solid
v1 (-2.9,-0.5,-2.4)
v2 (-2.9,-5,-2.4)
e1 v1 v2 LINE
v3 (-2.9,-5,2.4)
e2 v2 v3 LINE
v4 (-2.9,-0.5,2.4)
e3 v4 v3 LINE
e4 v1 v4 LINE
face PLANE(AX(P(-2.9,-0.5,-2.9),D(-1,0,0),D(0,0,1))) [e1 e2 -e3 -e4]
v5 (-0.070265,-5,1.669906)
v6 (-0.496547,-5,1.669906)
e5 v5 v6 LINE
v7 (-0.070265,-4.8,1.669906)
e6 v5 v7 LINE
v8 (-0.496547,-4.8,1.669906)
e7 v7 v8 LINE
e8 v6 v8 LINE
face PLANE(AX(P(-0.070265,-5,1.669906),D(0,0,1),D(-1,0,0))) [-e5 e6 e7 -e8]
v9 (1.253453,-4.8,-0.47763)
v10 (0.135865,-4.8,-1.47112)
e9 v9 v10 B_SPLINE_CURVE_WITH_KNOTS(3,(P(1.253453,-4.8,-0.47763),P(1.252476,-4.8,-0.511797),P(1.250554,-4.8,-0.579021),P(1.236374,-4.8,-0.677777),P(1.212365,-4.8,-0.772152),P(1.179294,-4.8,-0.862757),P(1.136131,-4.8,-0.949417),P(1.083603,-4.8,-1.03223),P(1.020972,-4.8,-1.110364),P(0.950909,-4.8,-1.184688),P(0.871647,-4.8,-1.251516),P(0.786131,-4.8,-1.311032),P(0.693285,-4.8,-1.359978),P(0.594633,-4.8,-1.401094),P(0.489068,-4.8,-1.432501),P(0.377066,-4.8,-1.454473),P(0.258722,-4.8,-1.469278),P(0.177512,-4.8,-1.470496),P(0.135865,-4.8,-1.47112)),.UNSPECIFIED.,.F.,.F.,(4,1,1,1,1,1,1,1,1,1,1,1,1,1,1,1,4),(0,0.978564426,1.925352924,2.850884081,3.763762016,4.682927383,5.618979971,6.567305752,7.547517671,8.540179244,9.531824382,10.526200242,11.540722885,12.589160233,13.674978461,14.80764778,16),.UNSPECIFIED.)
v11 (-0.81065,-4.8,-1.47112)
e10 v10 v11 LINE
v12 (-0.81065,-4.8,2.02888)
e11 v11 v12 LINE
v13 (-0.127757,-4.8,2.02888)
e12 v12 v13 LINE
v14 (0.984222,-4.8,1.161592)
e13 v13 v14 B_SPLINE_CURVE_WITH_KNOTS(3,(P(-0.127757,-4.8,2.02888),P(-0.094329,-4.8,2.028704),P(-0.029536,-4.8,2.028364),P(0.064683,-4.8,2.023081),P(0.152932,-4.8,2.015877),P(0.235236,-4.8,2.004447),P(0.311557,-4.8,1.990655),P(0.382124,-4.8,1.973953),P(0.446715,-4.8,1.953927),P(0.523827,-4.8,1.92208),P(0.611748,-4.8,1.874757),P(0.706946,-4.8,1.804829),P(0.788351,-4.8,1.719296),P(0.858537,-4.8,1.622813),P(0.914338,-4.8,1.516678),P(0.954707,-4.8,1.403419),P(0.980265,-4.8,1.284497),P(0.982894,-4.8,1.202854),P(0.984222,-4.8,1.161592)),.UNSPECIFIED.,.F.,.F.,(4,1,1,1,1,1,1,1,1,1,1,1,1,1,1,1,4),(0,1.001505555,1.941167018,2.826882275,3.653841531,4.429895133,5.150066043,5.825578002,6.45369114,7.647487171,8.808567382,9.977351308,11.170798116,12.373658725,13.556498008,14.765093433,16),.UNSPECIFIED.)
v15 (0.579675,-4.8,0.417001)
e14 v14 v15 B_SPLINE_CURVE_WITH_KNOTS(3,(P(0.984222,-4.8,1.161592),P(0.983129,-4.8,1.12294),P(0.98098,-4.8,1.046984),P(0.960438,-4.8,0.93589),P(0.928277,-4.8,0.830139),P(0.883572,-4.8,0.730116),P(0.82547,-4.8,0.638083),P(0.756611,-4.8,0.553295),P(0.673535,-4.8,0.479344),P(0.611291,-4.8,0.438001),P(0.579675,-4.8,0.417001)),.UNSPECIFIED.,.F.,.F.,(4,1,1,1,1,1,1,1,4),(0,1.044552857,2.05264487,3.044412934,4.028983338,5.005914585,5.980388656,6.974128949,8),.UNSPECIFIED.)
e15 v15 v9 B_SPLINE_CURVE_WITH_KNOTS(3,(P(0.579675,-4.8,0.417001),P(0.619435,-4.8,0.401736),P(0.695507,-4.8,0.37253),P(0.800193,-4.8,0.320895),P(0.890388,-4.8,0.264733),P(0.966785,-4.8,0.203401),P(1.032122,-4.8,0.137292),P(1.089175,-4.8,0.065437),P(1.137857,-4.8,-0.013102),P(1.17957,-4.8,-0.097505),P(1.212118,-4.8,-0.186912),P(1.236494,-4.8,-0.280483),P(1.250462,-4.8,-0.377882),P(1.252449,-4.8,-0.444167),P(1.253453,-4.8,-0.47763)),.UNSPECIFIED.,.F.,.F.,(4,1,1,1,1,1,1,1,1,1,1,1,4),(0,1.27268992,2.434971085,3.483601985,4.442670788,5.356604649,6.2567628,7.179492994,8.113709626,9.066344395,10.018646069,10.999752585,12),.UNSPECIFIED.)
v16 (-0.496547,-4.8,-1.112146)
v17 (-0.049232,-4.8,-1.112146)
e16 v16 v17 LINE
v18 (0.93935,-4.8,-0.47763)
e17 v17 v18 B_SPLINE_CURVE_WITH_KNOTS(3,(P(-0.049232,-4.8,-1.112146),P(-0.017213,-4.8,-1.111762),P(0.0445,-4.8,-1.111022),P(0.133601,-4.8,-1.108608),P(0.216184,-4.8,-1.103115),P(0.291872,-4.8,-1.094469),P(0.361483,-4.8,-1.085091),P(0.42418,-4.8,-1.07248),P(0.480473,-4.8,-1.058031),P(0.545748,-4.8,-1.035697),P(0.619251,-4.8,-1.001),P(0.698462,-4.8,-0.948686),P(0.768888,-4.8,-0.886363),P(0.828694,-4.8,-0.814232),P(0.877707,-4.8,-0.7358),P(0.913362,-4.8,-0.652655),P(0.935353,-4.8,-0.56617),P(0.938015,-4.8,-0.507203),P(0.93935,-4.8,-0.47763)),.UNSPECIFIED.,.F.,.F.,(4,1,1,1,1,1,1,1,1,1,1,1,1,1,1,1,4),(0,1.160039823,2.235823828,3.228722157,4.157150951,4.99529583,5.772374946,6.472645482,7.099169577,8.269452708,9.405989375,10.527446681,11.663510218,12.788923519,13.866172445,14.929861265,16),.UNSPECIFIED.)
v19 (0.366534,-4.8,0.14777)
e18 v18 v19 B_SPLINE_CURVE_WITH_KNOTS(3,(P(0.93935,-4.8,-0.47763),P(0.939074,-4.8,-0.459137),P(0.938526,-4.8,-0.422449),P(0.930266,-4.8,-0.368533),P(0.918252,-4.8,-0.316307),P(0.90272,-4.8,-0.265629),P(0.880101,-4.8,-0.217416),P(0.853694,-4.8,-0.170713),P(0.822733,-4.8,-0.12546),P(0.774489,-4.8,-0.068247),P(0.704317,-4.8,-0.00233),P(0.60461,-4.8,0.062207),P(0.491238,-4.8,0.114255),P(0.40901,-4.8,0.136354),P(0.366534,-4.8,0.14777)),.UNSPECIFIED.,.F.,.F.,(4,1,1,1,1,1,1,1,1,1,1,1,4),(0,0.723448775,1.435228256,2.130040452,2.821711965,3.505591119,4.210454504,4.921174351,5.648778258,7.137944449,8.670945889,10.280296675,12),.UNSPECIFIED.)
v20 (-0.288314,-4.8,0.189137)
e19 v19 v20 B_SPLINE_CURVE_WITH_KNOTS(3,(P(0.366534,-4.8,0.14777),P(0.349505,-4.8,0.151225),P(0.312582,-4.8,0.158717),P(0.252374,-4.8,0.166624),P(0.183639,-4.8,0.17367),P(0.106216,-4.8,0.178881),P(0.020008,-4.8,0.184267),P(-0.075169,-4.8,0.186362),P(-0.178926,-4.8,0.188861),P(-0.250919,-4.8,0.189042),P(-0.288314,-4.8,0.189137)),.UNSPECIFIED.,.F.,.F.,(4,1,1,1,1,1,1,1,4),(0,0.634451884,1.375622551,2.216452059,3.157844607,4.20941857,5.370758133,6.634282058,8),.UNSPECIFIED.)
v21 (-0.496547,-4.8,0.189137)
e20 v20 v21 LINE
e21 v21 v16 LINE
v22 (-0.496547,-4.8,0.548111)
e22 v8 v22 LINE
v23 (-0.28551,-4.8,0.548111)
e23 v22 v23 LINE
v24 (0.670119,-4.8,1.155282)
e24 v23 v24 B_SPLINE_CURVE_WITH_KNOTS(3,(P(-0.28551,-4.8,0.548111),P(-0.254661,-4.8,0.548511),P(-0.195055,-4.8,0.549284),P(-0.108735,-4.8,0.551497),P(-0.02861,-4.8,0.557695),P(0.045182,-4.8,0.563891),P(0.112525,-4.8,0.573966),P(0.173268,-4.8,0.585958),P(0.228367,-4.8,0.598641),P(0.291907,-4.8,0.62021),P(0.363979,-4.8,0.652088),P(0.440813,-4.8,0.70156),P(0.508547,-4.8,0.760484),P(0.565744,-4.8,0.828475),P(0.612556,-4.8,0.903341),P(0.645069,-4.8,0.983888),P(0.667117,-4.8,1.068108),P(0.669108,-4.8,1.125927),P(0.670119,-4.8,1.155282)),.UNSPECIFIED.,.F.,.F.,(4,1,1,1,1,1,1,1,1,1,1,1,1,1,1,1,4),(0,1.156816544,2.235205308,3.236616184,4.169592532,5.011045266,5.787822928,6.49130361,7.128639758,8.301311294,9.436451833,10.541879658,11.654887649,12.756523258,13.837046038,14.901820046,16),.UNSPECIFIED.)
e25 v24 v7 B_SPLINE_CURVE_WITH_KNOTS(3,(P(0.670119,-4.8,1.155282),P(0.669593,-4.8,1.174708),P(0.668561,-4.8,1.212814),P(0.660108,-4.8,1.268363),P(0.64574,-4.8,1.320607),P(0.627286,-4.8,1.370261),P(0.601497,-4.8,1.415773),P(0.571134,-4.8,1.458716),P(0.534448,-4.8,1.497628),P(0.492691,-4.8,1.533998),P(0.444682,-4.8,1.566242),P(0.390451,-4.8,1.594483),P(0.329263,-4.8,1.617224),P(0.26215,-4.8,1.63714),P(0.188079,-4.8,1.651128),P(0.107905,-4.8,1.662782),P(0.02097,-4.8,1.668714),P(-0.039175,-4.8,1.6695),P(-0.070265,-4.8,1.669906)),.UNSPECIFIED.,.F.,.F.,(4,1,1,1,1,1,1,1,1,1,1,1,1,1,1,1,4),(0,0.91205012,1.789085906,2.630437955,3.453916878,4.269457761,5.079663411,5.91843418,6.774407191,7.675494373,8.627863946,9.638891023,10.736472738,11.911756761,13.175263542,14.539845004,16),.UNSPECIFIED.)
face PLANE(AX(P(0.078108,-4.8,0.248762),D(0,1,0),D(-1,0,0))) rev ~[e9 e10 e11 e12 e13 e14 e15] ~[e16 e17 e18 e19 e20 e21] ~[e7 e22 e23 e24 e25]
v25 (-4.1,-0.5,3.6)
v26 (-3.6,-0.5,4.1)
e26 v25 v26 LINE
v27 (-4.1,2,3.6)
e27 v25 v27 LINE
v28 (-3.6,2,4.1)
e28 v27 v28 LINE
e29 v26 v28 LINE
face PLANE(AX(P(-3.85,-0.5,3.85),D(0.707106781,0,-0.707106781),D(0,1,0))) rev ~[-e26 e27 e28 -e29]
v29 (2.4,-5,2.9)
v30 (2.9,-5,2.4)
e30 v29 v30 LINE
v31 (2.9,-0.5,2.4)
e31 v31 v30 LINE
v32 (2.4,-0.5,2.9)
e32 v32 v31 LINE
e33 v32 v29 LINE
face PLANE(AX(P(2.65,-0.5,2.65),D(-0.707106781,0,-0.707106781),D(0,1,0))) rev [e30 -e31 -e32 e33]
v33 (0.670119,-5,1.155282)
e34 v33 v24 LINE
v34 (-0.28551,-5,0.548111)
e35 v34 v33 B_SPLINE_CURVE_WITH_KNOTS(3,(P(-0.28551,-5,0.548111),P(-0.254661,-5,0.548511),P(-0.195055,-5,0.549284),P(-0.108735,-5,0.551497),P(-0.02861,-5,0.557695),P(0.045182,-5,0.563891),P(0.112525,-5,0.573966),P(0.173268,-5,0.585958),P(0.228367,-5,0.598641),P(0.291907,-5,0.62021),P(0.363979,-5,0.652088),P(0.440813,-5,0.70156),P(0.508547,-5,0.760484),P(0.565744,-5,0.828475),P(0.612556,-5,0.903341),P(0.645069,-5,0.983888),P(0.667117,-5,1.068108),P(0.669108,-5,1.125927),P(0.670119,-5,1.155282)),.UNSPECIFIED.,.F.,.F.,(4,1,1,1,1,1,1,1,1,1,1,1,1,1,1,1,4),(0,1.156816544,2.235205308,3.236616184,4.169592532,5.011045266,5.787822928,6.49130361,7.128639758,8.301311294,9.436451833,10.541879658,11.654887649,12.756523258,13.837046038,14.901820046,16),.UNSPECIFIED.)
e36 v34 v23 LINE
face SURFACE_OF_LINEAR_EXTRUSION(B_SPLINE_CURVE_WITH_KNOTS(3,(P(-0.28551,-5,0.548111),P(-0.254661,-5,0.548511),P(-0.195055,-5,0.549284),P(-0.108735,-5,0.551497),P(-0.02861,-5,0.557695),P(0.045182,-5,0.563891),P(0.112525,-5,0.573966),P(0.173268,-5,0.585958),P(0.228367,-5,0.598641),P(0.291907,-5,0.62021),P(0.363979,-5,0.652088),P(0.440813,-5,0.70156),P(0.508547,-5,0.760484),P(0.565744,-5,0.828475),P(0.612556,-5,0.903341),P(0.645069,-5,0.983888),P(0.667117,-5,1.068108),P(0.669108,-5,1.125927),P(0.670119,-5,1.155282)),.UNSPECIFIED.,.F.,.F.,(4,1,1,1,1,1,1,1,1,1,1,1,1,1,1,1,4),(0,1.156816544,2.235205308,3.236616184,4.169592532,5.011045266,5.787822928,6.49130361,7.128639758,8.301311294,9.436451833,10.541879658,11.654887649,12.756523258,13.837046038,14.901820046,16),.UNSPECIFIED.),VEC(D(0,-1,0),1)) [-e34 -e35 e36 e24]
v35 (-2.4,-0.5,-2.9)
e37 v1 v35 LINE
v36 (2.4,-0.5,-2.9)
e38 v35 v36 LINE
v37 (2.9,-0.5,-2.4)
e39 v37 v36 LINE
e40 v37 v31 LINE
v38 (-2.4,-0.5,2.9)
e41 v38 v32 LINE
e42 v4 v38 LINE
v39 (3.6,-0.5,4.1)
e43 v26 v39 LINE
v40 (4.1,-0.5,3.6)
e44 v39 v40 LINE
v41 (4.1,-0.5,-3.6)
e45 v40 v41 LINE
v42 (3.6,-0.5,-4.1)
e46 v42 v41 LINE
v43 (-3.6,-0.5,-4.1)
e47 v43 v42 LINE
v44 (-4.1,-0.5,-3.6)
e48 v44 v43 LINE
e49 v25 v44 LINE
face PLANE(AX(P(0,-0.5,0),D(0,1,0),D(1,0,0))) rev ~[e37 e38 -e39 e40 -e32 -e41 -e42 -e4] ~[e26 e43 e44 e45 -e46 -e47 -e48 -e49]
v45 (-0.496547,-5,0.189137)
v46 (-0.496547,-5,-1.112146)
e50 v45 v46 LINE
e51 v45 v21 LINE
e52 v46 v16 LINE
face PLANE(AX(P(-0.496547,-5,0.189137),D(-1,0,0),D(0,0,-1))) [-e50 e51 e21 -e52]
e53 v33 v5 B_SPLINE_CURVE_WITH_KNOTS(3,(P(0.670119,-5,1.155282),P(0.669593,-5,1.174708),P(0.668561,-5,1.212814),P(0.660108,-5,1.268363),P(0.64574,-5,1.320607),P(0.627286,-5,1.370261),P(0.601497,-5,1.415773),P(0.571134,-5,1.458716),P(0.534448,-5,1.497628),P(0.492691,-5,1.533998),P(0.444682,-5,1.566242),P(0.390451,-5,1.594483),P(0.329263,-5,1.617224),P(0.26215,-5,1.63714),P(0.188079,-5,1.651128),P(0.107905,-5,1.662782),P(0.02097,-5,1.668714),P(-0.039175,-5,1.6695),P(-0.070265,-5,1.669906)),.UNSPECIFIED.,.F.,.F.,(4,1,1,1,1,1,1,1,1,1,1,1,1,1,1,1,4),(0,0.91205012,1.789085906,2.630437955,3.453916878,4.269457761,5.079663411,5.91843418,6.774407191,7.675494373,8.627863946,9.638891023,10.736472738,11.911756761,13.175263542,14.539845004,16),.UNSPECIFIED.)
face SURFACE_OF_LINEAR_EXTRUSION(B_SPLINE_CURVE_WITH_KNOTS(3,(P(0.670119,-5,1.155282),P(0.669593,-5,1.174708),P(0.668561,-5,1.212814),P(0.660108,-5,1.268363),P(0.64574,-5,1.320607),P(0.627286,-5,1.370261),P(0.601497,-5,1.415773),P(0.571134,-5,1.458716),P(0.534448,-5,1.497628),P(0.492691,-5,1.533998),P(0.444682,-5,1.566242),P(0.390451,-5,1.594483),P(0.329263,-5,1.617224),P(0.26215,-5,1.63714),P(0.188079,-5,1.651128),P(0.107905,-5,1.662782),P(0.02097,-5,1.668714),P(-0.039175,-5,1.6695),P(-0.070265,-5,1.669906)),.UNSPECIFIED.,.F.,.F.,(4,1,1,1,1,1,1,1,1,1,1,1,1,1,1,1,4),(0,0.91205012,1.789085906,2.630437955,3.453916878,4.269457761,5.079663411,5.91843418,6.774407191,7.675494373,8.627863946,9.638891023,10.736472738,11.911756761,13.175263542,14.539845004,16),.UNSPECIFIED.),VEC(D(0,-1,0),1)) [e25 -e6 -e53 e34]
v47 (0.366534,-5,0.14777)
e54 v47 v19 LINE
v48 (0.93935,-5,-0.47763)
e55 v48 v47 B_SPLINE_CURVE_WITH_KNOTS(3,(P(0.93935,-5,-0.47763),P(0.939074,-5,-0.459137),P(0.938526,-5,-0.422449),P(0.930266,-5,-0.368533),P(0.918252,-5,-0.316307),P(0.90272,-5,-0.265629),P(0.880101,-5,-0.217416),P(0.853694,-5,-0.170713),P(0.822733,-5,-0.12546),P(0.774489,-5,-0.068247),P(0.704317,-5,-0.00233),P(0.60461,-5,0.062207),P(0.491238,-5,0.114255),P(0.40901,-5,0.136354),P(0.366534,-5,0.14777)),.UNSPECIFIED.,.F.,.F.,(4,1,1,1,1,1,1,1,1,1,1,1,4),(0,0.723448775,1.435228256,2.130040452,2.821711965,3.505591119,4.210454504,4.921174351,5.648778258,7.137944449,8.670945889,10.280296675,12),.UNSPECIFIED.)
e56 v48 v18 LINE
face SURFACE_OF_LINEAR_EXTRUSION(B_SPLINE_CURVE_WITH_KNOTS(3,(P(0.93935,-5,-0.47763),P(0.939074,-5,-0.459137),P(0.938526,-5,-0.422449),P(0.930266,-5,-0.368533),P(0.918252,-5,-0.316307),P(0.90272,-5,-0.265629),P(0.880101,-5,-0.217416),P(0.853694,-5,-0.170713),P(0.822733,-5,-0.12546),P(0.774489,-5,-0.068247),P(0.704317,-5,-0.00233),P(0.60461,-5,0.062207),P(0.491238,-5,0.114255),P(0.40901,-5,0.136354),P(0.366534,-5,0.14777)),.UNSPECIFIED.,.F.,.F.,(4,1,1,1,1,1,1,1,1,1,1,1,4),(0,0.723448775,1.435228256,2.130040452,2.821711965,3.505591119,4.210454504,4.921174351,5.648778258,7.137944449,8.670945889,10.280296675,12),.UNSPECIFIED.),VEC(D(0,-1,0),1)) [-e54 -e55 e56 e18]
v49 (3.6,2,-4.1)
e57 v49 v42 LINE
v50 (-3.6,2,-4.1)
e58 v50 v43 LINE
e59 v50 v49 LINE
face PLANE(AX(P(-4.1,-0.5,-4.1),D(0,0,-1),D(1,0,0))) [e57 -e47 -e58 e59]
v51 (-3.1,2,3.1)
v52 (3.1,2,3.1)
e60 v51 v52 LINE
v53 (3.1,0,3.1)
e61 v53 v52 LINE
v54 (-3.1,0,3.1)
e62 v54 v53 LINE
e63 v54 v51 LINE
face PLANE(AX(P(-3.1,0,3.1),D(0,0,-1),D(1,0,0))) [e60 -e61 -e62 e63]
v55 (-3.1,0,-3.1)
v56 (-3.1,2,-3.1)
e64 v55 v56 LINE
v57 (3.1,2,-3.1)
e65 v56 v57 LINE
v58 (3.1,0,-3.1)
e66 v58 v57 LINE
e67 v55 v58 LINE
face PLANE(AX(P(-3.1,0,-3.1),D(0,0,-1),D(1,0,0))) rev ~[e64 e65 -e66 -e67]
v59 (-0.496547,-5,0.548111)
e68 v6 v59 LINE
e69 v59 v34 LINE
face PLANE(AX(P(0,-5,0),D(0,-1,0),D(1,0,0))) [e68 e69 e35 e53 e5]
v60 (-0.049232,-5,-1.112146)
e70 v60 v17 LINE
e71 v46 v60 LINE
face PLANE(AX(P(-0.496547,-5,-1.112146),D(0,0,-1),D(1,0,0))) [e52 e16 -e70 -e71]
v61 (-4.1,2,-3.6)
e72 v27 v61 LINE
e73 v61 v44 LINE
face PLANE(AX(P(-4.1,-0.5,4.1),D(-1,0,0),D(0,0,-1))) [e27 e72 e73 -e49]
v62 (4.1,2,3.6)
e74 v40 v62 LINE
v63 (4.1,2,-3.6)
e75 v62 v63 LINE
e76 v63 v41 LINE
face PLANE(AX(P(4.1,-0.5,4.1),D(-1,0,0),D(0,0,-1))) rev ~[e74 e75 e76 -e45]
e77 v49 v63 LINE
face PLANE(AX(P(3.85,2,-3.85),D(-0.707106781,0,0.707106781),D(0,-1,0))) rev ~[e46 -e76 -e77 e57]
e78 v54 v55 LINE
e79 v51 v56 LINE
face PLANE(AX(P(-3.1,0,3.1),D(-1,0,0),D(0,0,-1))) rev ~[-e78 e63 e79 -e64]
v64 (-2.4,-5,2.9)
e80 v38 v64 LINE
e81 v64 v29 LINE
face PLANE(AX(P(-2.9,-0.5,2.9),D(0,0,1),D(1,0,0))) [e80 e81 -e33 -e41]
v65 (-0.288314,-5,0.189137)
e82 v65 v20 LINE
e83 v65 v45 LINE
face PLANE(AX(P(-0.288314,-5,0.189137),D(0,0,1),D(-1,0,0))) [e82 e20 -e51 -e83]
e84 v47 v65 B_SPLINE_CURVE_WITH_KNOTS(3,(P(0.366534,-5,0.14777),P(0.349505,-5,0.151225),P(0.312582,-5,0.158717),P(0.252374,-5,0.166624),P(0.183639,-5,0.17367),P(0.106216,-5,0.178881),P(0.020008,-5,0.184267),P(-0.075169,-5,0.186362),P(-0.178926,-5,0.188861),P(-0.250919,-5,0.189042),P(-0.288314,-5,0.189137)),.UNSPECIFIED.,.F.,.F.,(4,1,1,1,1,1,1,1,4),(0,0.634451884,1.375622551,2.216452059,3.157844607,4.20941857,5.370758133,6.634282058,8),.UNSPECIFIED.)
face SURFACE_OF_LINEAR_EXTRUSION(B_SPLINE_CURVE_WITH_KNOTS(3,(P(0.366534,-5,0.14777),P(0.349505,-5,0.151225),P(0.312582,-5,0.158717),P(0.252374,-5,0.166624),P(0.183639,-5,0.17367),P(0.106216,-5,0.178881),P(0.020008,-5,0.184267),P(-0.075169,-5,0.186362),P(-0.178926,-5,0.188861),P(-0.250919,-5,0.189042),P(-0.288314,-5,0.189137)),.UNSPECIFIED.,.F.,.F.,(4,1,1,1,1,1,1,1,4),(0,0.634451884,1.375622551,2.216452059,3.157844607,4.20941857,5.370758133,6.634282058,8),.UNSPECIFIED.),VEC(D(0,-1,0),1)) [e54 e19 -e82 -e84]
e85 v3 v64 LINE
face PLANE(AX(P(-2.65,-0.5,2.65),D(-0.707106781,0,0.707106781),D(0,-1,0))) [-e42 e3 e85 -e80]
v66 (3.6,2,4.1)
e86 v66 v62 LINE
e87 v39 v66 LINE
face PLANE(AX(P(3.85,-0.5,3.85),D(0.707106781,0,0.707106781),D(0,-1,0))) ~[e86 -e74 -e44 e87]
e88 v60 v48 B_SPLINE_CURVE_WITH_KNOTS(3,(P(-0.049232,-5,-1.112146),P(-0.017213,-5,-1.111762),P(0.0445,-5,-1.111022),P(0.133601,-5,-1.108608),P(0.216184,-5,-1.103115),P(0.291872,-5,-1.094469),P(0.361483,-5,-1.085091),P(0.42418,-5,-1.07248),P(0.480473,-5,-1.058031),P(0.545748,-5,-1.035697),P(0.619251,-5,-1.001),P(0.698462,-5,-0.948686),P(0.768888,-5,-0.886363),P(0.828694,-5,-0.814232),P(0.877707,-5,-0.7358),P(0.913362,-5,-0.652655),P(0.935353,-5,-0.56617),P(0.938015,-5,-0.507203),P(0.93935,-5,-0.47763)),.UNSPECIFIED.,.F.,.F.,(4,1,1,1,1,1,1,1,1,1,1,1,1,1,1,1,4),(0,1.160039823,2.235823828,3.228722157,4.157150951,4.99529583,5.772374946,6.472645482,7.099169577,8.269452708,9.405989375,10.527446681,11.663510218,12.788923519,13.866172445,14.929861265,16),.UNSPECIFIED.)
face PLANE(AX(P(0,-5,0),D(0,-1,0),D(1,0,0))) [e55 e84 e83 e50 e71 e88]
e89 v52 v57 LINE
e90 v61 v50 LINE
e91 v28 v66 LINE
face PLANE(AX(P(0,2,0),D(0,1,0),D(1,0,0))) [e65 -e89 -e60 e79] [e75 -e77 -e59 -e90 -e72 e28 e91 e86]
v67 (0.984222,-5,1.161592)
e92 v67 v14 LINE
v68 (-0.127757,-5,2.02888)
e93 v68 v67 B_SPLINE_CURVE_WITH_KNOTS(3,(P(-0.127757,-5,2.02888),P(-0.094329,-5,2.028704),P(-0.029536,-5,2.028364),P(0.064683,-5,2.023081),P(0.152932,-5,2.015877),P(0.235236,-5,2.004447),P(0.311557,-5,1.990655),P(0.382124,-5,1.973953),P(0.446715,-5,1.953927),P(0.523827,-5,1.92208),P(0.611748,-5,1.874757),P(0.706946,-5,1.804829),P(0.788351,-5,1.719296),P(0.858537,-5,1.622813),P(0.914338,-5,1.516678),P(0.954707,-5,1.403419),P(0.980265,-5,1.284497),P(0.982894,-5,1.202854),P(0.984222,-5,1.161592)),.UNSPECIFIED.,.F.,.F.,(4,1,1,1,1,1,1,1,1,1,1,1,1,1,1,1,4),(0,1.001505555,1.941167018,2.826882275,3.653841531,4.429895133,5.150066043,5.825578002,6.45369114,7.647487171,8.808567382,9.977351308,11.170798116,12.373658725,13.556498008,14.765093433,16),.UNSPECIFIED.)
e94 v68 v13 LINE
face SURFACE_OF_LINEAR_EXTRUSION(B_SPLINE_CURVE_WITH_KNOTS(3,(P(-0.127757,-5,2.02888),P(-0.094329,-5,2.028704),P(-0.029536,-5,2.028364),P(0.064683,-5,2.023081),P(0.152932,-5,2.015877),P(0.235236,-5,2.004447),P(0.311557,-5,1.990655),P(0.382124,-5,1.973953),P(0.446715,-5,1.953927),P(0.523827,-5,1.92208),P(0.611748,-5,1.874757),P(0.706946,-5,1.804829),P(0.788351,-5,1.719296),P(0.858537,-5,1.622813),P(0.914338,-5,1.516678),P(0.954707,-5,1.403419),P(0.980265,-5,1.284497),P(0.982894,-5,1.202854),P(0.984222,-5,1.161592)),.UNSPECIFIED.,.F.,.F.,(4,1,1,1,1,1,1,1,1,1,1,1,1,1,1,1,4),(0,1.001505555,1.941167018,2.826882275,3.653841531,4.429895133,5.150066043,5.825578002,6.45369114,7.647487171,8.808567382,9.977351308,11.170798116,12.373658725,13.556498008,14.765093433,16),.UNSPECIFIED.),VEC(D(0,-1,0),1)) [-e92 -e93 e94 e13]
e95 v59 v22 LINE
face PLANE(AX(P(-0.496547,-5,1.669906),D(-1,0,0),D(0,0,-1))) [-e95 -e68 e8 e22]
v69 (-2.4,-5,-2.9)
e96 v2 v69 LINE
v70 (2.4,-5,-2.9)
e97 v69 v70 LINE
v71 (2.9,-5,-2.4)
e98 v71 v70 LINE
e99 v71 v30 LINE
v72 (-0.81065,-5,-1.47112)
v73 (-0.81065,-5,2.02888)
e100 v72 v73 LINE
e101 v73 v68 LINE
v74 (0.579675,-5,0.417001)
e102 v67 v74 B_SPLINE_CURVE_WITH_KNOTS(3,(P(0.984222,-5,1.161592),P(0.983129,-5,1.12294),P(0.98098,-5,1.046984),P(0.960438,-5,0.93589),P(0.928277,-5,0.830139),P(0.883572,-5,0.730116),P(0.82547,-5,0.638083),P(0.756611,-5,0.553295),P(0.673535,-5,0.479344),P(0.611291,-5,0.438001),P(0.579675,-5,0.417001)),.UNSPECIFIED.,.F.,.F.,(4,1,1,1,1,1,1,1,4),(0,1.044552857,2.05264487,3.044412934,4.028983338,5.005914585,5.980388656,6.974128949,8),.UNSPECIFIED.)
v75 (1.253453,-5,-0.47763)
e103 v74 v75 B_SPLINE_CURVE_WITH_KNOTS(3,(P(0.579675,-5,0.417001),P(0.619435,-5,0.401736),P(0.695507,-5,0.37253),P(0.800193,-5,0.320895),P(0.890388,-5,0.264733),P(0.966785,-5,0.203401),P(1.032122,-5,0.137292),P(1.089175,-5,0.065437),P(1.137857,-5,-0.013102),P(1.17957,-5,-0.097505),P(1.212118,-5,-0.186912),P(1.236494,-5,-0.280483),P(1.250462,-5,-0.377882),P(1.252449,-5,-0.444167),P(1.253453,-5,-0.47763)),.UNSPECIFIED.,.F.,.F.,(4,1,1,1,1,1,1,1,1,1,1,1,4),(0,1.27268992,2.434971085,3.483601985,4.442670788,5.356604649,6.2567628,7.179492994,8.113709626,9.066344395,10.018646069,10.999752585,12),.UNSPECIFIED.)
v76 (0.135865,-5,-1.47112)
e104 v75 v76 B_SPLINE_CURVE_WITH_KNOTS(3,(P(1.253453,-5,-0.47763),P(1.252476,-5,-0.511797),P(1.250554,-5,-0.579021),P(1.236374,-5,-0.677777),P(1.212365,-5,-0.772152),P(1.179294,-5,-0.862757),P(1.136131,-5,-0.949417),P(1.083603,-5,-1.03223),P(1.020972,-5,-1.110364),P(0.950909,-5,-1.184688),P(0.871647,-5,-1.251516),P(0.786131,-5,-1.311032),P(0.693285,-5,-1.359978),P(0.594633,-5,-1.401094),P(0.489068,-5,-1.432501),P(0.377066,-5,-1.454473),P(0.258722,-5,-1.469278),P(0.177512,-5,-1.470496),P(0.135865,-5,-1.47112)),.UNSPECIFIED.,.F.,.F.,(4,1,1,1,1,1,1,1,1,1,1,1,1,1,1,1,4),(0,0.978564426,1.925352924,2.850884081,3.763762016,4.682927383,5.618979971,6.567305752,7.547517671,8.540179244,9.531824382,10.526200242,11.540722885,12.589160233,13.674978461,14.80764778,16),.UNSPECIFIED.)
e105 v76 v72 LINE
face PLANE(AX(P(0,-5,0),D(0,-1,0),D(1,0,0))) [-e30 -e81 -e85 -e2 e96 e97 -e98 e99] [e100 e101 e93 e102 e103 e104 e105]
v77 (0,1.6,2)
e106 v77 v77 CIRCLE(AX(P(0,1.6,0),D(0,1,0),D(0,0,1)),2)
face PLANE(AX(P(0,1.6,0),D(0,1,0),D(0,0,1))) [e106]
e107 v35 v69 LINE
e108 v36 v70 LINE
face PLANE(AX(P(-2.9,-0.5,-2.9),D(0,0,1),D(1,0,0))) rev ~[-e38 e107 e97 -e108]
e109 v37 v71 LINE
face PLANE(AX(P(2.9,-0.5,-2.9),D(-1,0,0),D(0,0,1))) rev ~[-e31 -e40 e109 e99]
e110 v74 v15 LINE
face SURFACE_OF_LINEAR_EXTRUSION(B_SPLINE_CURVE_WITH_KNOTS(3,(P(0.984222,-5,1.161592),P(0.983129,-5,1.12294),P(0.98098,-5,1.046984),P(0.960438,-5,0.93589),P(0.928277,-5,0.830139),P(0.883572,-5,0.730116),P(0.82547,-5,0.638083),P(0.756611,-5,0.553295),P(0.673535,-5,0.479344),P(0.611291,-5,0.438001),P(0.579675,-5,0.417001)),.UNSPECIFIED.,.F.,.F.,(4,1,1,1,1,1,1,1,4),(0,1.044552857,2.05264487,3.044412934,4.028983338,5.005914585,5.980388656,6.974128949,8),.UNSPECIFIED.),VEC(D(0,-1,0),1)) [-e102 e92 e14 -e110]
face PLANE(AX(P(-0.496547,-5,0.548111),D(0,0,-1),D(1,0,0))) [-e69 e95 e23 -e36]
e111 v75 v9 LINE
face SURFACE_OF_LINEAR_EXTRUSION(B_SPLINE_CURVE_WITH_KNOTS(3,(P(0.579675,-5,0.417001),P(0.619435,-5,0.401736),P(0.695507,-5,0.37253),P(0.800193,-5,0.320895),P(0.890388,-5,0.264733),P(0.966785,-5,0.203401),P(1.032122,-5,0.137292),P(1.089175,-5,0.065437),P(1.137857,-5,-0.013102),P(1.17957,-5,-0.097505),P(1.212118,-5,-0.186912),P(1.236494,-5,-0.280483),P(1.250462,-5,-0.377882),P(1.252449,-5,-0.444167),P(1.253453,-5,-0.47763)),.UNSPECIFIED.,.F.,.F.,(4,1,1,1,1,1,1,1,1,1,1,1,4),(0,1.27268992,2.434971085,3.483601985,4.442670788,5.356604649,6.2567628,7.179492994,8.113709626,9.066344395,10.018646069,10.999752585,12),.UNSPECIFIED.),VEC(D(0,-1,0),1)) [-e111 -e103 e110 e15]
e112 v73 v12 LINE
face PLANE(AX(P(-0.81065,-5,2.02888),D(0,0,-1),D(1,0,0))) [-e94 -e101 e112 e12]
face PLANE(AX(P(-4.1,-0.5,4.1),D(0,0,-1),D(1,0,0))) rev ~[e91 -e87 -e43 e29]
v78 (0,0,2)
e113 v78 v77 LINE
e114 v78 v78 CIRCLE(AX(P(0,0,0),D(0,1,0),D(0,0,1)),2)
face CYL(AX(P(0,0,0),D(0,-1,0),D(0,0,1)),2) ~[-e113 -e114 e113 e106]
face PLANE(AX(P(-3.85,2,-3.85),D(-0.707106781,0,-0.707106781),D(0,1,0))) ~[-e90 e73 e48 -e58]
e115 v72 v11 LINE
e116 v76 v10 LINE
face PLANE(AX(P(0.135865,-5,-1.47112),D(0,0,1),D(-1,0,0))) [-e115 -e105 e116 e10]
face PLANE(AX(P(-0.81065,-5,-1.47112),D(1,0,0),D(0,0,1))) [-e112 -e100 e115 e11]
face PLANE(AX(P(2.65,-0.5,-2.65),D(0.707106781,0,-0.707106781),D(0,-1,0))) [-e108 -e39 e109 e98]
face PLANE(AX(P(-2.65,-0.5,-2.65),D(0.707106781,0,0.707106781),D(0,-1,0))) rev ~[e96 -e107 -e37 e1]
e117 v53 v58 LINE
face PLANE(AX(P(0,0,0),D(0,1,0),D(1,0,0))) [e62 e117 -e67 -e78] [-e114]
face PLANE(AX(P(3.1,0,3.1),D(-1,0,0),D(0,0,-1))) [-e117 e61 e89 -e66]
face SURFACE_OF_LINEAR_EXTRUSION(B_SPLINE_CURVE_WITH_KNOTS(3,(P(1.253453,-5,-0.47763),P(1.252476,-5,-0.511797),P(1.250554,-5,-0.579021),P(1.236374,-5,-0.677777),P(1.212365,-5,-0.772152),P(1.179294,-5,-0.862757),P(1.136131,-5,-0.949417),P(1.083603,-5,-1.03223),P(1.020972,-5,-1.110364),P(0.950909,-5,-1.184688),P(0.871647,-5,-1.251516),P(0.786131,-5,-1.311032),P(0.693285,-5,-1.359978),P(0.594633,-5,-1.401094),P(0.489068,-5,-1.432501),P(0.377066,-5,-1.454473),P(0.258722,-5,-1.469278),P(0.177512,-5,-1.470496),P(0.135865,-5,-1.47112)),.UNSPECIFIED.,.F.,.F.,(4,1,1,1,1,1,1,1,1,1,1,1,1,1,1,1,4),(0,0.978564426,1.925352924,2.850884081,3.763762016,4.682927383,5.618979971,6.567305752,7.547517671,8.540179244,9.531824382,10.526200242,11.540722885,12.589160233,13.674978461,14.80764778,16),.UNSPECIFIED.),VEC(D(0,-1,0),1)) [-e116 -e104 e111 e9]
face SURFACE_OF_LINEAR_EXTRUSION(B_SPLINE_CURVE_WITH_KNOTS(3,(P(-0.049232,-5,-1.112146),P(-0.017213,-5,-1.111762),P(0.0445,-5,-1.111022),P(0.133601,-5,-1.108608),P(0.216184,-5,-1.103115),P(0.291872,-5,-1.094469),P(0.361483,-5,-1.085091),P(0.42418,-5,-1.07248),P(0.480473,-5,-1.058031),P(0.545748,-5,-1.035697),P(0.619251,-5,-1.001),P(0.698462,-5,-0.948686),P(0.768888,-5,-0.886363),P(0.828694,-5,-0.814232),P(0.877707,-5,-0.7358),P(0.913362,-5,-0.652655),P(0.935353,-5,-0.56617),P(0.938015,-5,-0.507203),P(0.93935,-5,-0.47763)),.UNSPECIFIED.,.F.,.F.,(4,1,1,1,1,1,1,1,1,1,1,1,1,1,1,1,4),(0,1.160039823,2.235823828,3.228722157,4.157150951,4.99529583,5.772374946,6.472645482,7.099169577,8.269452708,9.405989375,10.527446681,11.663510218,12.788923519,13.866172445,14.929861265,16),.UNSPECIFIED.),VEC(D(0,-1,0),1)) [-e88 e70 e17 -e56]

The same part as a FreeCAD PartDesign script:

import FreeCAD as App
import Part
import Sketcher
from FreeCAD import Vector
Q = App.Units.Quantity


def edges_at(feature, points):
    """Names of the edges that pass closest to the given points."""
    edges = feature.Shape.Edges
    near = lambda p: min(range(len(edges)), key=lambda i: edges[i].distToShape(Part.Vertex(*p))[0])
    return sorted({f"Edge{near(p) + 1}" for p in points})

doc = App.newDocument("Part")
body = doc.addObject("PartDesign::Body", "Body")

# Sketch on XZ plane
sketch1 = body.newObject("Sketcher::SketchObject", "Sketch")
sketch1.AttachmentSupport = (doc.getObject("XZ_Plane"), [""])
sketch1.MapMode = "FlatFace"
sketch1.addGeometry(Part.Circle(Vector(0, 0, 0), Vector(0, 0, 1), 2), False)
sketch1.addConstraint(Sketcher.Constraint("Coincident", 0, 3, -1, 1))
sketch1.addConstraint(Sketcher.Constraint("Diameter", 0, Q("4 mm")))
pad1 = body.newObject("PartDesign::Pad", "Pad")
pad1.Profile = sketch1
pad1.Length = 1.6
pad1.Reversed = True
body2 = doc.addObject("PartDesign::Body", "Body001")

# Sketch on XZ plane
sketch2 = body2.newObject("Sketcher::SketchObject", "Sketch001")
sketch2.AttachmentSupport = (doc.getObject("XZ_Plane001"), [""])
sketch2.MapMode = "FlatFace"
sketch2.addGeometry(Part.LineSegment(Vector(-4, -4, 0), Vector(-4, 4, 0)), False)
sketch2.addGeometry(Part.LineSegment(Vector(-4, 4, 0), Vector(4, 4, 0)), False)
sketch2.addGeometry(Part.LineSegment(Vector(4, 4, 0), Vector(4, -4, 0)), False)
sketch2.addGeometry(Part.LineSegment(Vector(4, -4, 0), Vector(-4, -4, 0)), False)
sketch2.addGeometry(Part.LineSegment(Vector(3, 3, 0), Vector(-3, 3, 0)), False)
sketch2.addGeometry(Part.LineSegment(Vector(-3, 3, 0), Vector(-3, -3, 0)), False)
sketch2.addGeometry(Part.LineSegment(Vector(-3, -3, 0), Vector(3, -3, 0)), False)
sketch2.addGeometry(Part.LineSegment(Vector(3, -3, 0), Vector(3, 3, 0)), False)
sketch2.addConstraint(Sketcher.Constraint("Coincident", 0, 2, 1, 1))
sketch2.addConstraint(Sketcher.Constraint("Coincident", 1, 2, 2, 1))
sketch2.addConstraint(Sketcher.Constraint("Coincident", 2, 2, 3, 1))
sketch2.addConstraint(Sketcher.Constraint("Coincident", 3, 2, 0, 1))
sketch2.addConstraint(Sketcher.Constraint("Coincident", 4, 2, 5, 1))
sketch2.addConstraint(Sketcher.Constraint("Coincident", 5, 2, 6, 1))
sketch2.addConstraint(Sketcher.Constraint("Coincident", 6, 2, 7, 1))
sketch2.addConstraint(Sketcher.Constraint("Coincident", 7, 2, 4, 1))
sketch2.addConstraint(Sketcher.Constraint("Vertical", 0))
sketch2.addConstraint(Sketcher.Constraint("Horizontal", 1))
sketch2.addConstraint(Sketcher.Constraint("Vertical", 2))
sketch2.addConstraint(Sketcher.Constraint("Horizontal", 3))
sketch2.addConstraint(Sketcher.Constraint("Horizontal", 4))
sketch2.addConstraint(Sketcher.Constraint("Vertical", 5))
sketch2.addConstraint(Sketcher.Constraint("Horizontal", 6))
sketch2.addConstraint(Sketcher.Constraint("Vertical", 7))
sketch2.addConstraint(Sketcher.Constraint("Symmetric", 0, 2, 2, 2, -1, 1))
sketch2.addConstraint(Sketcher.Constraint("Symmetric", 4, 2, 6, 2, -1, 1))
sketch2.addConstraint(Sketcher.Constraint("Equal", 3, 0))
sketch2.addConstraint(Sketcher.Constraint("Equal", 6, 5))
sketch2.addConstraint(Sketcher.Constraint("DistanceX", 1, 1, 1, 2, Q("8.2 mm")))
sketch2.addConstraint(Sketcher.Constraint("DistanceX", 4, 2, 4, 1, Q("6.2 mm")))
pad2 = body2.newObject("PartDesign::Pad", "Pad001")
pad2.Profile = sketch2
pad2.Length = 2
pad2.Reversed = True
body.AllowCompound = True
doc.recompute()

boolean = body.newObject("PartDesign::Boolean", "Boolean")
boolean.Type = "Fuse"
boolean.addObjects([body2])

# Sketch on XZ plane
sketch3 = body.newObject("Sketcher::SketchObject", "Sketch002")
sketch3.AttachmentSupport = (doc.getObject("XZ_Plane"), [""])
sketch3.MapMode = "FlatFace"
sketch3.AttachmentOffset = App.Placement(Vector(0, 0, 0.5), App.Rotation())
sketch3.addGeometry(Part.LineSegment(Vector(-4, -4, 0), Vector(-4, 4, 0)), False)
sketch3.addGeometry(Part.LineSegment(Vector(-4, 4, 0), Vector(4, 4, 0)), False)
sketch3.addGeometry(Part.LineSegment(Vector(4, 4, 0), Vector(4, -4, 0)), False)
sketch3.addGeometry(Part.LineSegment(Vector(4, -4, 0), Vector(-4, -4, 0)), False)
sketch3.addConstraint(Sketcher.Constraint("Coincident", 0, 2, 1, 1))
sketch3.addConstraint(Sketcher.Constraint("Coincident", 1, 2, 2, 1))
sketch3.addConstraint(Sketcher.Constraint("Coincident", 2, 2, 3, 1))
sketch3.addConstraint(Sketcher.Constraint("Coincident", 3, 2, 0, 1))
sketch3.addConstraint(Sketcher.Constraint("Vertical", 0))
sketch3.addConstraint(Sketcher.Constraint("Horizontal", 1))
sketch3.addConstraint(Sketcher.Constraint("Vertical", 2))
sketch3.addConstraint(Sketcher.Constraint("Horizontal", 3))
sketch3.addConstraint(Sketcher.Constraint("Symmetric", 0, 2, 2, 2, -1, 1))
sketch3.addConstraint(Sketcher.Constraint("Equal", 3, 0))
sketch3.addConstraint(Sketcher.Constraint("DistanceX", 1, 1, 1, 2, Q("8.2 mm")))
pad3 = body.newObject("PartDesign::Pad", "Pad002")
pad3.Profile = sketch3
pad3.Length = 0.5
pad3.Reversed = True

# Sketch on XZ plane
sketch4 = body.newObject("Sketcher::SketchObject", "Sketch003")
sketch4.AttachmentSupport = (doc.getObject("XZ_Plane"), [""])
sketch4.MapMode = "FlatFace"
sketch4.AttachmentOffset = App.Placement(Vector(0, 0, 0.5), App.Rotation())
sketch4.addGeometry(Part.LineSegment(Vector(-3, 3, 0), Vector(-3, -3, 0)), False)
sketch4.addGeometry(Part.LineSegment(Vector(-3, -3, 0), Vector(3, -3, 0)), False)
sketch4.addGeometry(Part.LineSegment(Vector(3, -3, 0), Vector(3, 3, 0)), False)
sketch4.addGeometry(Part.LineSegment(Vector(3, 3, 0), Vector(-3, 3, 0)), False)
sketch4.addConstraint(Sketcher.Constraint("Coincident", 0, 2, 1, 1))
sketch4.addConstraint(Sketcher.Constraint("Coincident", 1, 2, 2, 1))
sketch4.addConstraint(Sketcher.Constraint("Coincident", 2, 2, 3, 1))
sketch4.addConstraint(Sketcher.Constraint("Coincident", 3, 2, 0, 1))
sketch4.addConstraint(Sketcher.Constraint("Vertical", 0))
sketch4.addConstraint(Sketcher.Constraint("Horizontal", 1))
sketch4.addConstraint(Sketcher.Constraint("Vertical", 2))
sketch4.addConstraint(Sketcher.Constraint("Horizontal", 3))
sketch4.addConstraint(Sketcher.Constraint("Symmetric", 0, 2, 2, 2, -1, 1))
sketch4.addConstraint(Sketcher.Constraint("Equal", 3, 0))
sketch4.addConstraint(Sketcher.Constraint("DistanceX", 1, 1, 1, 2, Q("5.8 mm")))
pad4 = body.newObject("PartDesign::Pad", "Pad003")
pad4.Profile = sketch4
pad4.Length = 4.5
doc.recompute()

chamfer = body.newObject("PartDesign::Chamfer", "Chamfer")
chamfer.Base = (pad4, edges_at(pad4, [
    (2.9, -2.75, -2.9),
    (2.9, -2.75, 2.9),
    (-2.9, -2.75, 2.9),
    (-2.9, -2.75, -2.9),
    (-4.1, 0.75, -4.1),
    (4.1, 0.75, -4.1),
    (4.1, 0.75, 4.1),
    (-4.1, 0.75, 4.1),
]))
chamfer.Size = 0.5

# Sketch on XZ plane
sketch5 = body.newObject("Sketcher::SketchObject", "Sketch004")
sketch5.AttachmentSupport = (doc.getObject("XZ_Plane"), [""])
sketch5.MapMode = "FlatFace"
sketch5.AttachmentOffset = App.Placement(Vector(0, 0, 5), App.Rotation())
sketch5.addGeometry(Part.LineSegment(Vector(-0.127757, 2.02888, 0), Vector(-0.81065, 2.02888, 0)), False)
sketch5.addGeometry(Part.LineSegment(Vector(-0.81065, 2.02888, 0), Vector(-0.81065, -1.47112, 0)), False)
sketch5.addGeometry(Part.LineSegment(Vector(-0.81065, -1.47112, 0), Vector(0.135865, -1.47112, 0)), False)
sketch5.addGeometry(Part.BSplineCurve([Vector(1.253453, -0.47763, 0), Vector(1.252476, -0.511797, 0), Vector(1.250554, -0.579021, 0), Vector(1.236374, -0.677777, 0), Vector(1.212365, -0.772152, 0), Vector(1.179294, -0.862757, 0), Vector(1.136131, -0.949417, 0), Vector(1.083603, -1.03223, 0), Vector(1.020972, -1.110364, 0), Vector(0.950909, -1.184688, 0), Vector(0.871647, -1.251516, 0), Vector(0.786131, -1.311032, 0), Vector(0.693285, -1.359978, 0), Vector(0.594633, -1.401094, 0), Vector(0.489068, -1.432501, 0), Vector(0.377066, -1.454473, 0), Vector(0.258722, -1.469278, 0), Vector(0.177512, -1.470496, 0), Vector(0.135865, -1.47112, 0)], [4, 1, 1, 1, 1, 1, 1, 1, 1, 1, 1, 1, 1, 1, 1, 1, 4], [0, 0.978564426, 1.925352924, 2.850884081, 3.763762016, 4.682927383, 5.618979971, 6.567305752, 7.547517671, 8.540179244, 9.531824382, 10.526200242, 11.540722885, 12.589160233, 13.674978461, 14.80764778, 16], False, 3, [1, 1, 1, 1, 1, 1, 1, 1, 1, 1, 1, 1, 1, 1, 1, 1, 1, 1, 1], False), False)
sketch5.addGeometry(Part.BSplineCurve([Vector(0.579675, 0.417001, 0), Vector(0.619435, 0.401736, 0), Vector(0.695507, 0.37253, 0), Vector(0.800193, 0.320895, 0), Vector(0.890388, 0.264733, 0), Vector(0.966785, 0.203401, 0), Vector(1.032122, 0.137292, 0), Vector(1.089175, 0.065437, 0), Vector(1.137857, -0.013102, 0), Vector(1.17957, -0.097505, 0), Vector(1.212118, -0.186912, 0), Vector(1.236494, -0.280483, 0), Vector(1.250462, -0.377882, 0), Vector(1.252449, -0.444167, 0), Vector(1.253453, -0.47763, 0)], [4, 1, 1, 1, 1, 1, 1, 1, 1, 1, 1, 1, 4], [0, 1.27268992, 2.434971085, 3.483601985, 4.442670788, 5.356604649, 6.2567628, 7.179492994, 8.113709626, 9.066344395, 10.018646069, 10.999752585, 12], False, 3, [1, 1, 1, 1, 1, 1, 1, 1, 1, 1, 1, 1, 1, 1, 1], False), False)
sketch5.addGeometry(Part.BSplineCurve([Vector(0.984222, 1.161592, 0), Vector(0.983129, 1.12294, 0), Vector(0.98098, 1.046984, 0), Vector(0.960438, 0.93589, 0), Vector(0.928277, 0.830139, 0), Vector(0.883572, 0.730116, 0), Vector(0.82547, 0.638083, 0), Vector(0.756611, 0.553295, 0), Vector(0.673535, 0.479344, 0), Vector(0.611291, 0.438001, 0), Vector(0.579675, 0.417001, 0)], [4, 1, 1, 1, 1, 1, 1, 1, 4], [0, 1.044552857, 2.05264487, 3.044412934, 4.028983338, 5.005914585, 5.980388656, 6.974128949, 8], False, 3, [1, 1, 1, 1, 1, 1, 1, 1, 1, 1, 1], False), False)
sketch5.addGeometry(Part.BSplineCurve([Vector(-0.127757, 2.02888, 0), Vector(-0.094329, 2.028704, 0), Vector(-0.029536, 2.028364, 0), Vector(0.064683, 2.023081, 0), Vector(0.152932, 2.015877, 0), Vector(0.235236, 2.004447, 0), Vector(0.311557, 1.990655, 0), Vector(0.382124, 1.973953, 0), Vector(0.446715, 1.953927, 0), Vector(0.523827, 1.92208, 0), Vector(0.611748, 1.874757, 0), Vector(0.706946, 1.804829, 0), Vector(0.788351, 1.719296, 0), Vector(0.858537, 1.622813, 0), Vector(0.914338, 1.516678, 0), Vector(0.954707, 1.403419, 0), Vector(0.980265, 1.284497, 0), Vector(0.982894, 1.202854, 0), Vector(0.984222, 1.161592, 0)], [4, 1, 1, 1, 1, 1, 1, 1, 1, 1, 1, 1, 1, 1, 1, 1, 4], [0, 1.001505555, 1.941167018, 2.826882275, 3.653841531, 4.429895133, 5.150066043, 5.825578002, 6.45369114, 7.647487171, 8.808567382, 9.977351308, 11.170798116, 12.373658725, 13.556498008, 14.765093433, 16], False, 3, [1, 1, 1, 1, 1, 1, 1, 1, 1, 1, 1, 1, 1, 1, 1, 1, 1, 1, 1], False), False)
sketch5.addGeometry(Part.LineSegment(Vector(-0.496547, 0.189137, 0), Vector(-0.288314, 0.189137, 0)), False)
sketch5.addGeometry(Part.BSplineCurve([Vector(0.366534, 0.14777, 0), Vector(0.349505, 0.151225, 0), Vector(0.312582, 0.158717, 0), Vector(0.252374, 0.166624, 0), Vector(0.183639, 0.17367, 0), Vector(0.106216, 0.178881, 0), Vector(0.020008, 0.184267, 0), Vector(-0.075169, 0.186362, 0), Vector(-0.178926, 0.188861, 0), Vector(-0.250919, 0.189042, 0), Vector(-0.288314, 0.189137, 0)], [4, 1, 1, 1, 1, 1, 1, 1, 4], [0, 0.634451884, 1.375622551, 2.216452059, 3.157844607, 4.20941857, 5.370758133, 6.634282058, 8], False, 3, [1, 1, 1, 1, 1, 1, 1, 1, 1, 1, 1], False), False)
sketch5.addGeometry(Part.BSplineCurve([Vector(0.93935, -0.47763, 0), Vector(0.939074, -0.459137, 0), Vector(0.938526, -0.422449, 0), Vector(0.930266, -0.368533, 0), Vector(0.918252, -0.316307, 0), Vector(0.90272, -0.265629, 0), Vector(0.880101, -0.217416, 0), Vector(0.853694, -0.170713, 0), Vector(0.822733, -0.12546, 0), Vector(0.774489, -0.068247, 0), Vector(0.704317, -0.00233, 0), Vector(0.60461, 0.062207, 0), Vector(0.491238, 0.114255, 0), Vector(0.40901, 0.136354, 0), Vector(0.366534, 0.14777, 0)], [4, 1, 1, 1, 1, 1, 1, 1, 1, 1, 1, 1, 4], [0, 0.723448775, 1.435228256, 2.130040452, 2.821711965, 3.505591119, 4.210454504, 4.921174351, 5.648778258, 7.137944449, 8.670945889, 10.280296675, 12], False, 3, [1, 1, 1, 1, 1, 1, 1, 1, 1, 1, 1, 1, 1, 1, 1], False), False)
sketch5.addGeometry(Part.BSplineCurve([Vector(-0.049232, -1.112146, 0), Vector(-0.017213, -1.111762, 0), Vector(0.0445, -1.111022, 0), Vector(0.133601, -1.108608, 0), Vector(0.216184, -1.103115, 0), Vector(0.291872, -1.094469, 0), Vector(0.361483, -1.085091, 0), Vector(0.42418, -1.07248, 0), Vector(0.480473, -1.058031, 0), Vector(0.545748, -1.035697, 0), Vector(0.619251, -1.001, 0), Vector(0.698462, -0.948686, 0), Vector(0.768888, -0.886363, 0), Vector(0.828694, -0.814232, 0), Vector(0.877707, -0.7358, 0), Vector(0.913362, -0.652655, 0), Vector(0.935353, -0.56617, 0), Vector(0.938015, -0.507203, 0), Vector(0.93935, -0.47763, 0)], [4, 1, 1, 1, 1, 1, 1, 1, 1, 1, 1, 1, 1, 1, 1, 1, 4], [0, 1.160039823, 2.235823828, 3.228722157, 4.157150951, 4.99529583, 5.772374946, 6.472645482, 7.099169577, 8.269452708, 9.405989375, 10.527446681, 11.663510218, 12.788923519, 13.866172445, 14.929861265, 16], False, 3, [1, 1, 1, 1, 1, 1, 1, 1, 1, 1, 1, 1, 1, 1, 1, 1, 1, 1, 1], False), False)
sketch5.addGeometry(Part.LineSegment(Vector(-0.049232, -1.112146, 0), Vector(-0.496547, -1.112146, 0)), False)
sketch5.addGeometry(Part.LineSegment(Vector(-0.496547, -1.112146, 0), Vector(-0.496547, 0.189137, 0)), False)
sketch5.addGeometry(Part.LineSegment(Vector(-0.496547, 1.669906, 0), Vector(-0.070265, 1.669906, 0)), False)
sketch5.addGeometry(Part.BSplineCurve([Vector(0.670119, 1.155282, 0), Vector(0.669593, 1.174708, 0), Vector(0.668561, 1.212814, 0), Vector(0.660108, 1.268363, 0), Vector(0.64574, 1.320607, 0), Vector(0.627286, 1.370261, 0), Vector(0.601497, 1.415773, 0), Vector(0.571134, 1.458716, 0), Vector(0.534448, 1.497628, 0), Vector(0.492691, 1.533998, 0), Vector(0.444682, 1.566242, 0), Vector(0.390451, 1.594483, 0), Vector(0.329263, 1.617224, 0), Vector(0.26215, 1.63714, 0), Vector(0.188079, 1.651128, 0), Vector(0.107905, 1.662782, 0), Vector(0.02097, 1.668714, 0), Vector(-0.039175, 1.6695, 0), Vector(-0.070265, 1.669906, 0)], [4, 1, 1, 1, 1, 1, 1, 1, 1, 1, 1, 1, 1, 1, 1, 1, 4], [0, 0.91205012, 1.789085906, 2.630437955, 3.453916878, 4.269457761, 5.079663411, 5.91843418, 6.774407191, 7.675494373, 8.627863946, 9.638891023, 10.736472738, 11.911756761, 13.175263542, 14.539845004, 16], False, 3, [1, 1, 1, 1, 1, 1, 1, 1, 1, 1, 1, 1, 1, 1, 1, 1, 1, 1, 1], False), False)
sketch5.addGeometry(Part.BSplineCurve([Vector(-0.28551, 0.548111, 0), Vector(-0.254661, 0.548511, 0), Vector(-0.195055, 0.549284, 0), Vector(-0.108735, 0.551497, 0), Vector(-0.02861, 0.557695, 0), Vector(0.045182, 0.563891, 0), Vector(0.112525, 0.573966, 0), Vector(0.173268, 0.585958, 0), Vector(0.228367, 0.598641, 0), Vector(0.291907, 0.62021, 0), Vector(0.363979, 0.652088, 0), Vector(0.440813, 0.70156, 0), Vector(0.508547, 0.760484, 0), Vector(0.565744, 0.828475, 0), Vector(0.612556, 0.903341, 0), Vector(0.645069, 0.983888, 0), Vector(0.667117, 1.068108, 0), Vector(0.669108, 1.125927, 0), Vector(0.670119, 1.155282, 0)], [4, 1, 1, 1, 1, 1, 1, 1, 1, 1, 1, 1, 1, 1, 1, 1, 4], [0, 1.156816544, 2.235205308, 3.236616184, 4.169592532, 5.011045266, 5.787822928, 6.49130361, 7.128639758, 8.301311294, 9.436451833, 10.541879658, 11.654887649, 12.756523258, 13.837046038, 14.901820046, 16], False, 3, [1, 1, 1, 1, 1, 1, 1, 1, 1, 1, 1, 1, 1, 1, 1, 1, 1, 1, 1], False), False)
sketch5.addGeometry(Part.LineSegment(Vector(-0.28551, 0.548111, 0), Vector(-0.496547, 0.548111, 0)), False)
sketch5.addGeometry(Part.LineSegment(Vector(-0.496547, 0.548111, 0), Vector(-0.496547, 1.669906, 0)), False)
sketch5.addConstraint(Sketcher.Constraint("Block", 3))
sketch5.addConstraint(Sketcher.Constraint("Block", 4))
sketch5.addConstraint(Sketcher.Constraint("Block", 5))
sketch5.addConstraint(Sketcher.Constraint("Block", 6))
sketch5.addConstraint(Sketcher.Constraint("Block", 8))
sketch5.addConstraint(Sketcher.Constraint("Block", 9))
sketch5.addConstraint(Sketcher.Constraint("Block", 10))
sketch5.addConstraint(Sketcher.Constraint("Block", 14))
sketch5.addConstraint(Sketcher.Constraint("Block", 15))
sketch5.addConstraint(Sketcher.Constraint("Coincident", 0, 2, 1, 1))
sketch5.addConstraint(Sketcher.Constraint("Coincident", 1, 2, 2, 1))
sketch5.addConstraint(Sketcher.Constraint("Coincident", 2, 2, 3, 2))
sketch5.addConstraint(Sketcher.Constraint("Coincident", 6, 1, 0, 1))
sketch5.addConstraint(Sketcher.Constraint("Coincident", 7, 2, 8, 2))
sketch5.addConstraint(Sketcher.Constraint("Coincident", 10, 1, 11, 1))
sketch5.addConstraint(Sketcher.Constraint("Coincident", 11, 2, 12, 1))
sketch5.addConstraint(Sketcher.Constraint("Coincident", 12, 2, 7, 1))
sketch5.addConstraint(Sketcher.Constraint("Coincident", 13, 2, 14, 2))
sketch5.addConstraint(Sketcher.Constraint("Coincident", 15, 1, 16, 1))
sketch5.addConstraint(Sketcher.Constraint("Coincident", 16, 2, 17, 1))
sketch5.addConstraint(Sketcher.Constraint("Coincident", 17, 2, 13, 1))
sketch5.addConstraint(Sketcher.Constraint("Horizontal", 0))
sketch5.addConstraint(Sketcher.Constraint("Vertical", 1))
sketch5.addConstraint(Sketcher.Constraint("Horizontal", 2))
sketch5.addConstraint(Sketcher.Constraint("Horizontal", 7))
sketch5.addConstraint(Sketcher.Constraint("Horizontal", 11))
sketch5.addConstraint(Sketcher.Constraint("Vertical", 12))
sketch5.addConstraint(Sketcher.Constraint("Horizontal", 13))
sketch5.addConstraint(Sketcher.Constraint("Horizontal", 16))
sketch5.addConstraint(Sketcher.Constraint("Vertical", 17))
sketch5.addConstraint(Sketcher.Constraint("Vertical", 12, 2, 16, 2))
sketch5.addConstraint(Sketcher.Constraint("DistanceX", 0, 2, 0, 1, Q("0.682893 mm")))
sketch5.addConstraint(Sketcher.Constraint("DistanceX", 7, 1, 7, 2, Q("0.208233 mm")))
pocket1 = body.newObject("PartDesign::Pocket", "Pocket")
pocket1.Profile = sketch5
pocket1.Length = 0.2

doc.recompute()
